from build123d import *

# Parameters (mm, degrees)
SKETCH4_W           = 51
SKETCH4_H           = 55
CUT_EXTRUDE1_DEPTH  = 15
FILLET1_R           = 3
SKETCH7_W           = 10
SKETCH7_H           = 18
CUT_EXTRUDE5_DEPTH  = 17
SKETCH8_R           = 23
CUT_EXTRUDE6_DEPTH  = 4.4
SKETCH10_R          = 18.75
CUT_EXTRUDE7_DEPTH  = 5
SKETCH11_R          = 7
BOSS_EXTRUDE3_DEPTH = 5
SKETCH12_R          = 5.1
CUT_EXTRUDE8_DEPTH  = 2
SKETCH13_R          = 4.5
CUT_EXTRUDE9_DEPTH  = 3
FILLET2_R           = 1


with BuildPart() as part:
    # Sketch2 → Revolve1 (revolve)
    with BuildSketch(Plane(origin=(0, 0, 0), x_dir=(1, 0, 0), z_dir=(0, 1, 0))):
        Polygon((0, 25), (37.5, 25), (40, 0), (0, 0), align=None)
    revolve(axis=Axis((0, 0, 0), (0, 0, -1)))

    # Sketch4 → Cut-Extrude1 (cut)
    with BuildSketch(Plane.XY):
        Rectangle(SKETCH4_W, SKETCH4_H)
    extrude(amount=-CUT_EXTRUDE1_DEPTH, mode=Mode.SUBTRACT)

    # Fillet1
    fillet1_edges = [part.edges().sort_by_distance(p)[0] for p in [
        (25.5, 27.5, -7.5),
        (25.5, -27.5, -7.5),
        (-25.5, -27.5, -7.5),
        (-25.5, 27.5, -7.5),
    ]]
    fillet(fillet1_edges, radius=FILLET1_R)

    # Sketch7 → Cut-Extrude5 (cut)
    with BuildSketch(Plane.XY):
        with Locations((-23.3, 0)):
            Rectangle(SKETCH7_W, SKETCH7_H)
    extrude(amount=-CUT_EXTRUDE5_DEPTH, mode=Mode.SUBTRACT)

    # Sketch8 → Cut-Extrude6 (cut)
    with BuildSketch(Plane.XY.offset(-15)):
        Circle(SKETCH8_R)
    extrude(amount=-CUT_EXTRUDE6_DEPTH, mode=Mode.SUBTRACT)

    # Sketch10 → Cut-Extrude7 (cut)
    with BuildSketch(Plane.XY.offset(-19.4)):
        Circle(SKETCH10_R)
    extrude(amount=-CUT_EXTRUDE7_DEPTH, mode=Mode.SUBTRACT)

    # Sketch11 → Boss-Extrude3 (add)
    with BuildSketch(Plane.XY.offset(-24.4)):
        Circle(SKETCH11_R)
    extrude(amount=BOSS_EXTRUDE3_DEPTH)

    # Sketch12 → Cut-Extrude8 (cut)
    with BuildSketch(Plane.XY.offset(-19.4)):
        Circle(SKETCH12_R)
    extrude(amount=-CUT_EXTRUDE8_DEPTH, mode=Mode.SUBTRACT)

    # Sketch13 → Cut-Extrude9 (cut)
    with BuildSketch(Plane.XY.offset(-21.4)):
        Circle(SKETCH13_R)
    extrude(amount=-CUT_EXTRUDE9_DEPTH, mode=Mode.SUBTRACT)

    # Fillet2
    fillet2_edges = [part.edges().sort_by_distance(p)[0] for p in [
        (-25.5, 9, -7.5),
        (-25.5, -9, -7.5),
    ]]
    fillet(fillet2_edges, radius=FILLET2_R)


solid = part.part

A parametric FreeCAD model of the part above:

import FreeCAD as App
import Part
import Sketcher

V = App.Vector


def edges_at(feature, points):
    """Names of the edges that pass closest to the given points."""
    edges = feature.Shape.Edges
    near = lambda p: min(range(len(edges)), key=lambda i: edges[i].distToShape(Part.Vertex(*p))[0])
    return sorted({f"Edge{near(p) + 1}" for p in points})

doc = App.newDocument("Part")
body = doc.addObject("PartDesign::Body", "Body")

# Sketch on XZ plane
sketch1 = body.newObject("Sketcher::SketchObject", "Sketch")
sketch1.AttachmentSupport = (doc.getObject("XZ_Plane"), [""])
sketch1.MapMode = "FlatFace"
sketch1.addGeometry(Part.LineSegment(V(38, -25, 0), V(0, -25, 0)), False)
sketch1.addGeometry(Part.LineSegment(V(0, -25, 0), V(0, 0, 0)), False)
sketch1.addGeometry(Part.LineSegment(V(0, 0, 0), V(40, 0, 0)), False)
sketch1.addGeometry(Part.LineSegment(V(40, 0, 0), V(38, -25, 0)), False)
sketch1.addConstraint(Sketcher.Constraint("Coincident", 0, 2, 1, 1))
sketch1.addConstraint(Sketcher.Constraint("Coincident", 1, 2, 2, 1))
sketch1.addConstraint(Sketcher.Constraint("Coincident", 2, 2, 3, 1))
sketch1.addConstraint(Sketcher.Constraint("Coincident", 3, 2, 0, 1))
sketch1.addConstraint(Sketcher.Constraint("Horizontal", 0))
sketch1.addConstraint(Sketcher.Constraint("Vertical", 1))
sketch1.addConstraint(Sketcher.Constraint("Horizontal", 2))
sketch1.addConstraint(Sketcher.Constraint("Coincident", 1, 2, -1, 1))
sketch1.addConstraint(Sketcher.Constraint("DistanceX", 2, 1, 2, 2, 40.0))
sketch1.addConstraint(Sketcher.Constraint("DistanceY", 1, 1, 1, 2, 25.0))
sketch1.addConstraint(Sketcher.Constraint("DistanceX", 0, 2, 0, 1, 37.5))
revolution = body.newObject("PartDesign::Revolution", "Revolution")
revolution.Profile = sketch1
revolution.ReferenceAxis = (sketch1, ["V_Axis"])
revolution.Angle = 360

# Sketch on XY plane
sketch2 = body.newObject("Sketcher::SketchObject", "Sketch001")
sketch2.AttachmentSupport = (doc.getObject("XY_Plane"), [""])
sketch2.MapMode = "FlatFace"
sketch2.addGeometry(Part.LineSegment(V(-26, 28, 0), V(-26, -28, 0)), False)
sketch2.addGeometry(Part.LineSegment(V(-26, -28, 0), V(26, -28, 0)), False)
sketch2.addGeometry(Part.LineSegment(V(26, -28, 0), V(26, 28, 0)), False)
sketch2.addGeometry(Part.LineSegment(V(26, 28, 0), V(-26, 28, 0)), False)
sketch2.addConstraint(Sketcher.Constraint("Coincident", 0, 2, 1, 1))
sketch2.addConstraint(Sketcher.Constraint("Coincident", 1, 2, 2, 1))
sketch2.addConstraint(Sketcher.Constraint("Coincident", 2, 2, 3, 1))
sketch2.addConstraint(Sketcher.Constraint("Coincident", 3, 2, 0, 1))
sketch2.addConstraint(Sketcher.Constraint("Vertical", 0))
sketch2.addConstraint(Sketcher.Constraint("Horizontal", 1))
sketch2.addConstraint(Sketcher.Constraint("Vertical", 2))
sketch2.addConstraint(Sketcher.Constraint("Horizontal", 3))
sketch2.addConstraint(Sketcher.Constraint("Symmetric", 0, 2, 2, 2, -1, 1))
sketch2.addConstraint(Sketcher.Constraint("DistanceX", 1, 1, 1, 2, 51.0))
sketch2.addConstraint(Sketcher.Constraint("DistanceY", 0, 2, 0, 1, 55.0))
pocket1 = body.newObject("PartDesign::Pocket", "Pocket")
pocket1.Profile = sketch2
pocket1.Length = 15
doc.recompute()

fillet = body.newObject("PartDesign::Fillet", "Fillet")
fillet.Base = (pocket1, edges_at(pocket1, [
    (25.5, 27.5, -7.5),
    (25.5, -27.5, -7.5),
    (-25.5, -27.5, -7.5),
    (-25.5, 27.5, -7.5),
]))
fillet.Radius = 3

# Sketch on XY plane
sketch3 = body.newObject("Sketcher::SketchObject", "Sketch002")
sketch3.AttachmentSupport = (doc.getObject("XY_Plane"), [""])
sketch3.MapMode = "FlatFace"
sketch3.addGeometry(Part.LineSegment(V(-28, 9, 0), V(-28, -9, 0)), False)
sketch3.addGeometry(Part.LineSegment(V(-28, -9, 0), V(-18, -9, 0)), False)
sketch3.addGeometry(Part.LineSegment(V(-18, -9, 0), V(-18, 9, 0)), False)
sketch3.addGeometry(Part.LineSegment(V(-18, 9, 0), V(-28, 9, 0)), False)
sketch3.addConstraint(Sketcher.Constraint("Coincident", 0, 2, 1, 1))
sketch3.addConstraint(Sketcher.Constraint("Coincident", 1, 2, 2, 1))
sketch3.addConstraint(Sketcher.Constraint("Coincident", 2, 2, 3, 1))
sketch3.addConstraint(Sketcher.Constraint("Coincident", 3, 2, 0, 1))
sketch3.addConstraint(Sketcher.Constraint("Vertical", 0))
sketch3.addConstraint(Sketcher.Constraint("Horizontal", 1))
sketch3.addConstraint(Sketcher.Constraint("Vertical", 2))
sketch3.addConstraint(Sketcher.Constraint("Horizontal", 3))
sketch3.addConstraint(Sketcher.Constraint("DistanceX", 1, 1, 1, 2, 10.0))
sketch3.addConstraint(Sketcher.Constraint("DistanceY", 0, 2, 0, 1, 18.0))
sketch3.addConstraint(Sketcher.Constraint("DistanceY", 0, 2, -1, 1, 9.0))
sketch3.addConstraint(Sketcher.Constraint("DistanceX", 0, 2, -1, 1, 28.3))
pocket2 = body.newObject("PartDesign::Pocket", "Pocket001")
pocket2.Profile = sketch3
pocket2.Length = 17

# Sketch on XY plane
sketch4 = body.newObject("Sketcher::SketchObject", "Sketch003")
sketch4.AttachmentSupport = (doc.getObject("XY_Plane"), [""])
sketch4.MapMode = "FlatFace"
sketch4.AttachmentOffset = App.Placement(V(0, 0, -15), App.Rotation())
sketch4.addGeometry(Part.Circle(V(0, 0, 0), V(0, 0, 1), 23), False)
sketch4.addConstraint(Sketcher.Constraint("Coincident", 0, 3, -1, 1))
sketch4.addConstraint(Sketcher.Constraint("Diameter", 0, 46.0))
pocket3 = body.newObject("PartDesign::Pocket", "Pocket002")
pocket3.Profile = sketch4
pocket3.Length = 4.4

# Sketch on XY plane
sketch5 = body.newObject("Sketcher::SketchObject", "Sketch004")
sketch5.AttachmentSupport = (doc.getObject("XY_Plane"), [""])
sketch5.MapMode = "FlatFace"
sketch5.AttachmentOffset = App.Placement(V(0, 0, -19.4), App.Rotation())
sketch5.addGeometry(Part.Circle(V(0, 0, 0), V(0, 0, 1), 19), False)
sketch5.addConstraint(Sketcher.Constraint("Coincident", 0, 3, -1, 1))
sketch5.addConstraint(Sketcher.Constraint("Diameter", 0, 37.5))
pocket4 = body.newObject("PartDesign::Pocket", "Pocket003")
pocket4.Profile = sketch5
pocket4.Length = 5

# Sketch on XY plane
sketch6 = body.newObject("Sketcher::SketchObject", "Sketch005")
sketch6.AttachmentSupport = (doc.getObject("XY_Plane"), [""])
sketch6.MapMode = "FlatFace"
sketch6.AttachmentOffset = App.Placement(V(0, 0, -24.4), App.Rotation())
sketch6.addGeometry(Part.Circle(V(0, 0, 0), V(0, 0, 1), 7), False)
sketch6.addConstraint(Sketcher.Constraint("Coincident", 0, 3, -1, 1))
sketch6.addConstraint(Sketcher.Constraint("Diameter", 0, 14.0))
pad1 = body.newObject("PartDesign::Pad", "Pad")
pad1.Profile = sketch6
pad1.Length = 5

# Sketch on XY plane
sketch7 = body.newObject("Sketcher::SketchObject", "Sketch006")
sketch7.AttachmentSupport = (doc.getObject("XY_Plane"), [""])
sketch7.MapMode = "FlatFace"
sketch7.AttachmentOffset = App.Placement(V(0, 0, -19.4), App.Rotation())
sketch7.addGeometry(Part.Circle(V(0, 0, 0), V(0, 0, 1), 5), False)
sketch7.addConstraint(Sketcher.Constraint("Coincident", 0, 3, -1, 1))
sketch7.addConstraint(Sketcher.Constraint("Diameter", 0, 10.2))
pocket5 = body.newObject("PartDesign::Pocket", "Pocket004")
pocket5.Profile = sketch7
pocket5.Length = 2

# Sketch on XY plane
sketch8 = body.newObject("Sketcher::SketchObject", "Sketch007")
sketch8.AttachmentSupport = (doc.getObject("XY_Plane"), [""])
sketch8.MapMode = "FlatFace"
sketch8.AttachmentOffset = App.Placement(V(0, 0, -21.4), App.Rotation())
sketch8.addGeometry(Part.Circle(V(0, 0, 0), V(0, 0, 1), 4.5), False)
sketch8.addConstraint(Sketcher.Constraint("Coincident", 0, 3, -1, 1))
sketch8.addConstraint(Sketcher.Constraint("Diameter", 0, 9.0))
pocket6 = body.newObject("PartDesign::Pocket", "Pocket005")
pocket6.Profile = sketch8
pocket6.Length = 3
doc.recompute()

fillet2 = body.newObject("PartDesign::Fillet", "Fillet001")
fillet2.Base = (pocket6, edges_at(pocket6, [(-25.5, 9, -7.5), (-25.5, -9, -7.5)]))
fillet2.Radius = 1

doc.recompute()
